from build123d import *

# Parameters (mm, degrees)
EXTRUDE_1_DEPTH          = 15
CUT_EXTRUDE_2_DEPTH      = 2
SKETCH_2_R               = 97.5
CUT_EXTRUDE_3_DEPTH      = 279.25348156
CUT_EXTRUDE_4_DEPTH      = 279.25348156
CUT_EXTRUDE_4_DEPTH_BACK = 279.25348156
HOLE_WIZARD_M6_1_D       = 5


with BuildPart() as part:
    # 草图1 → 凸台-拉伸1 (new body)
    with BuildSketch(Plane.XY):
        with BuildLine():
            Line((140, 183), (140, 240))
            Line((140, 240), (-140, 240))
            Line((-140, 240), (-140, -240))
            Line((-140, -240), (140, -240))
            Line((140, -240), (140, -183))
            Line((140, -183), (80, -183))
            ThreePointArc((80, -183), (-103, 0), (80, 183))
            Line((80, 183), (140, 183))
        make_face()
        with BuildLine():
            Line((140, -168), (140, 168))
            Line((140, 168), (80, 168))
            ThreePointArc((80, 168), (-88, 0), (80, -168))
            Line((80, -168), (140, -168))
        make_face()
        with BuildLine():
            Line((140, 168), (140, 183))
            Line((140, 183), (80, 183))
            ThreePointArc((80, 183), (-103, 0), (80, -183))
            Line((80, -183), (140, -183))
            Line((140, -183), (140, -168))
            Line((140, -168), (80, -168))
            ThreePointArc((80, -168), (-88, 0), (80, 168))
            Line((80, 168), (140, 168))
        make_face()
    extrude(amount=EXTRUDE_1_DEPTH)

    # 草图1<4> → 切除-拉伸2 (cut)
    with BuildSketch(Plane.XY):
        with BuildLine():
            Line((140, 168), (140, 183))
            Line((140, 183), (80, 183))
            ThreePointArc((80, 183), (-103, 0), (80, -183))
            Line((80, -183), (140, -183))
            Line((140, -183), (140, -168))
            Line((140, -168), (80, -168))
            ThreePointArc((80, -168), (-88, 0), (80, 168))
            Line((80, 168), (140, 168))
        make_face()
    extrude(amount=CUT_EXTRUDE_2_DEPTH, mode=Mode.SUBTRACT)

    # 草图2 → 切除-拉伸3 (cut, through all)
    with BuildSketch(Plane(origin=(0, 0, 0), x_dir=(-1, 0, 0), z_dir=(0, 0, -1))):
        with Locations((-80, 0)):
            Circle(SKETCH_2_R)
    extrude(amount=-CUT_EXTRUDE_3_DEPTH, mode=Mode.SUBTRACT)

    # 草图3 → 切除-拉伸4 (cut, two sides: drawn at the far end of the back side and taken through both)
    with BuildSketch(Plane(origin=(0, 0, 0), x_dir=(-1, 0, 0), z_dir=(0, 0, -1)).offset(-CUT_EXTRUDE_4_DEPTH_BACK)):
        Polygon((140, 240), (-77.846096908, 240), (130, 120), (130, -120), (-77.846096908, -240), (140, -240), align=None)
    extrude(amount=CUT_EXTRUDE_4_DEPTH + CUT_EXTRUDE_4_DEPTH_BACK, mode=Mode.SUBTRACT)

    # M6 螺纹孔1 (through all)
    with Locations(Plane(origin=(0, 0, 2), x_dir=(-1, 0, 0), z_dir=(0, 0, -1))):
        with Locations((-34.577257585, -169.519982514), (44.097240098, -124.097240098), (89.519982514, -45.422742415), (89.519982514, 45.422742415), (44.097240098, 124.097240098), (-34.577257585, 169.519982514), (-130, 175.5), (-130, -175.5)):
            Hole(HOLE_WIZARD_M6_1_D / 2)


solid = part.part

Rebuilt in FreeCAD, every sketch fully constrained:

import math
import FreeCAD as App
import Part
import Sketcher
Q = App.Units.Quantity

doc = App.newDocument("Part")
params = doc.addObject("Spreadsheet::Sheet", "Params")
for row, (alias, value) in enumerate([
    ("sketch1_width", "280 mm"),
    ("sketch1_height", "480 mm"),
    ("pad1_length", "15 mm"),
    ("sketch2_radius", "183 mm"),
    ("sketch2_radius2", "168 mm"),
    ("sketch2_width", "60 mm"),
    ("pocket1_length", "2 mm"),
    ("sketch3_diameter", "195 mm"),
    ("sketch4_height", "240 mm"),
    ("sketch4_height2", "480 mm"),
    ("sketch5_diameter", "5 mm"),
    ("hole_diameter", "5 mm"),
], start=1):
    params.set(f"A{row}", alias)
    params.set(f"B{row}", "=" + value)
    params.setAlias(f"B{row}", alias)

body = doc.addObject("PartDesign::Body", "Body")

sketch1 = body.newObject("Sketcher::SketchObject", "Sketch")
sketch1.AttachmentSupport = (doc.getObject("XY_Plane"), [""])
sketch1.MapMode = "FlatFace"
sketch1.addGeometry([
    Part.LineSegment(App.Vector(140, 240, 0), App.Vector(-140, 240, 0)),
    Part.LineSegment(App.Vector(-140, 240, 0), App.Vector(-140, -240, 0)),
    Part.LineSegment(App.Vector(-140, -240, 0), App.Vector(140, -240, 0)),
    Part.LineSegment(App.Vector(140, -240, 0), App.Vector(140, 240, 0)),
], False)
sketch1.addConstraint([
    Sketcher.Constraint("Coincident", 0, 2, 1, 1),
    Sketcher.Constraint("Coincident", 1, 2, 2, 1),
    Sketcher.Constraint("Coincident", 2, 2, 3, 1),
    Sketcher.Constraint("Coincident", 3, 2, 0, 1),
    Sketcher.Constraint("Horizontal", 0),
    Sketcher.Constraint("Vertical", 1),
    Sketcher.Constraint("Horizontal", 2),
    Sketcher.Constraint("Vertical", 3),
    Sketcher.Constraint("Symmetric", 0, 2, 2, 2, -1, 1),
    Sketcher.Constraint("DistanceX", 0, 2, 0, 1, Q("280 mm")),
    Sketcher.Constraint("DistanceY", 1, 2, 1, 1, Q("480 mm")),
])
sketch1.setExpression("Constraints[9]", "Params.sketch1_width")
sketch1.setExpression("Constraints[10]", "Params.sketch1_height")
pad1 = body.newObject("PartDesign::Pad", "Pad")
pad1.Profile = sketch1
pad1.setExpression("Length", "Params.pad1_length")

sketch2 = body.newObject("Sketcher::SketchObject", "Sketch001")
sketch2.AttachmentSupport = (doc.getObject("XY_Plane"), [""])
sketch2.MapMode = "FlatFace"
sketch2.addGeometry([
    Part.LineSegment(App.Vector(140, 168, 0), App.Vector(140, 183, 0)),
    Part.LineSegment(App.Vector(140, 183, 0), App.Vector(80, 183, 0)),
    Part.ArcOfCircle(Part.Circle(App.Vector(80, 0, 0), App.Vector(0, 0, 1), 183), math.radians(90), math.radians(270)),
    Part.LineSegment(App.Vector(80, -183, 0), App.Vector(140, -183, 0)),
    Part.LineSegment(App.Vector(140, -183, 0), App.Vector(140, -168, 0)),
    Part.LineSegment(App.Vector(140, -168, 0), App.Vector(80, -168, 0)),
    Part.ArcOfCircle(Part.Circle(App.Vector(80, 0, 0), App.Vector(0, 0, 1), 168), math.radians(90), math.radians(270)),
    Part.LineSegment(App.Vector(80, 168, 0), App.Vector(140, 168, 0)),
], False)
sketch2.addConstraint([
    Sketcher.Constraint("Coincident", 0, 2, 1, 1),
    Sketcher.Constraint("Tangent", 1, 2, 2, 1),
    Sketcher.Constraint("Tangent", 2, 2, 3, 1),
    Sketcher.Constraint("Coincident", 3, 2, 4, 1),
    Sketcher.Constraint("Coincident", 4, 2, 5, 1),
    Sketcher.Constraint("Tangent", 5, 2, 6, 2),
    Sketcher.Constraint("Tangent", 6, 1, 7, 1),
    Sketcher.Constraint("Coincident", 7, 2, 0, 1),
    Sketcher.Constraint("Vertical", 0),
    Sketcher.Constraint("Horizontal", 1),
    Sketcher.Constraint("Horizontal", 3),
    Sketcher.Constraint("Vertical", 4),
    Sketcher.Constraint("Horizontal", 5),
    Sketcher.Constraint("Horizontal", 7),
    Sketcher.Constraint("Coincident", 6, 3, 2, 3),
    Sketcher.Constraint("Symmetric", 0, 2, 3, 2, -1),
    Sketcher.Constraint("Radius", 2, Q("183 mm")),
    Sketcher.Constraint("Radius", 6, Q("168 mm")),
    Sketcher.Constraint("DistanceX", 1, 2, 1, 1, Q("60 mm")),
    Sketcher.Constraint("DistanceX", -1, 1, 2, 3, Q("80 mm")),
])
sketch2.setExpression("Constraints[16]", "Params.sketch2_radius")
sketch2.setExpression("Constraints[17]", "Params.sketch2_radius2")
sketch2.setExpression("Constraints[18]", "Params.sketch2_width")
pocket1 = body.newObject("PartDesign::Pocket", "Pocket")
pocket1.Profile = sketch2
pocket1.setExpression("Length", "Params.pocket1_length")
pocket1.Reversed = True

sketch3 = body.newObject("Sketcher::SketchObject", "Sketch002")
sketch3.AttachmentSupport = (doc.getObject("XY_Plane"), [""])
sketch3.MapMode = "FlatFace"
sketch3.addGeometry(Part.Circle(App.Vector(80, 0, 0), App.Vector(0, 0, 1), 98), False)
sketch3.addConstraint([
    Sketcher.Constraint("PointOnObject", 0, 3, -1),
    Sketcher.Constraint("Diameter", 0, Q("195 mm")),
    Sketcher.Constraint("DistanceX", -1, 1, 0, 3, Q("80 mm")),
])
sketch3.setExpression("Constraints[1]", "Params.sketch3_diameter")
pocket2 = body.newObject("PartDesign::Pocket", "Pocket001")
pocket2.Profile = sketch3
pocket2.Type = "ThroughAll"
pocket2.Reversed = True

sketch4 = body.newObject("Sketcher::SketchObject", "Sketch003")
sketch4.AttachmentSupport = (doc.getObject("XY_Plane"), [""])
sketch4.MapMode = "FlatFace"
sketch4.addGeometry([
    Part.LineSegment(App.Vector(-140, 240, 0), App.Vector(78, 240, 0)),
    Part.LineSegment(App.Vector(78, 240, 0), App.Vector(-130, 120, 0)),
    Part.LineSegment(App.Vector(-130, 120, 0), App.Vector(-130, -120, 0)),
    Part.LineSegment(App.Vector(-130, -120, 0), App.Vector(78, -240, 0)),
    Part.LineSegment(App.Vector(78, -240, 0), App.Vector(-140, -240, 0)),
    Part.LineSegment(App.Vector(-140, -240, 0), App.Vector(-140, 240, 0)),
], False)
sketch4.addConstraint([
    Sketcher.Constraint("Coincident", 0, 2, 1, 1),
    Sketcher.Constraint("Coincident", 1, 2, 2, 1),
    Sketcher.Constraint("Coincident", 2, 2, 3, 1),
    Sketcher.Constraint("Coincident", 3, 2, 4, 1),
    Sketcher.Constraint("Coincident", 4, 2, 5, 1),
    Sketcher.Constraint("Coincident", 5, 2, 0, 1),
    Sketcher.Constraint("Horizontal", 0),
    Sketcher.Constraint("Vertical", 2),
    Sketcher.Constraint("Horizontal", 4),
    Sketcher.Constraint("Vertical", 5),
    Sketcher.Constraint("Symmetric", 0, 2, 3, 2, -1),
    Sketcher.Constraint("Equal", 1, 3),
    Sketcher.Constraint("DistanceY", 2, 2, 2, 1, Q("240 mm")),
    Sketcher.Constraint("DistanceY", 5, 1, 5, 2, Q("480 mm")),
    Sketcher.Constraint("Angle", 1, Q("-150 deg")),
    Sketcher.Constraint("DistanceX", 1, 2, -1, 1, Q("130 mm")),
    Sketcher.Constraint("DistanceX", 4, 2, -1, 1, Q("140 mm")),
])
sketch4.setExpression("Constraints[12]", "Params.sketch4_height")
sketch4.setExpression("Constraints[13]", "Params.sketch4_height2")
pocket3 = body.newObject("PartDesign::Pocket", "Pocket002")
pocket3.Profile = sketch4
pocket3.Type = "ThroughAll"
pocket3.Midplane = True

sketch5 = body.newObject("Sketcher::SketchObject", "Sketch004")
sketch5.AttachmentSupport = (doc.getObject("XY_Plane"), [""])
sketch5.MapMode = "FlatFace"
sketch5.AttachmentOffset = App.Placement(App.Vector(0, 0, 2), App.Rotation())
sketch5.addGeometry([
    Part.Circle(App.Vector(34.6, -169.5, 0), App.Vector(0, 0, 1), 2.5),
    Part.Circle(App.Vector(-44.1, -124.1, 0), App.Vector(0, 0, 1), 2.5),
    Part.Circle(App.Vector(-89.5, -45.4, 0), App.Vector(0, 0, 1), 2.5),
    Part.Circle(App.Vector(-89.5, 45.4, 0), App.Vector(0, 0, 1), 2.5),
    Part.Circle(App.Vector(-44.1, 124.1, 0), App.Vector(0, 0, 1), 2.5),
    Part.Circle(App.Vector(34.6, 169.5, 0), App.Vector(0, 0, 1), 2.5),
    Part.Circle(App.Vector(130, 175.5, 0), App.Vector(0, 0, 1), 2.5),
    Part.Circle(App.Vector(130, -175.5, 0), App.Vector(0, 0, 1), 2.5),
], False)
sketch5.addConstraint([
    Sketcher.Constraint("Equal", 0, 1),
    Sketcher.Constraint("Equal", 1, 2),
    Sketcher.Constraint("Equal", 2, 3),
    Sketcher.Constraint("Equal", 3, 4),
    Sketcher.Constraint("Equal", 4, 5),
    Sketcher.Constraint("Equal", 5, 6),
    Sketcher.Constraint("Equal", 6, 7),
    Sketcher.Constraint("Symmetric", 2, 3, 3, 3, -1),
    Sketcher.Constraint("Symmetric", 1, 3, 4, 3, -1),
    Sketcher.Constraint("Symmetric", 0, 3, 5, 3, -1),
    Sketcher.Constraint("Symmetric", 6, 3, 7, 3, -1),
    Sketcher.Constraint("Diameter", 0, Q("5 mm")),
    Sketcher.Constraint("DistanceX", -1, 1, 6, 3, Q("130 mm")),
    Sketcher.Constraint("DistanceY", -1, 1, 6, 3, Q("175.5 mm")),
    Sketcher.Constraint("DistanceX", 1, 3, -1, 1, Q("44.09724 mm")),
    Sketcher.Constraint("DistanceY", 1, 3, -1, 1, Q("124.09724 mm")),
    Sketcher.Constraint("DistanceX", 2, 3, 0, 3, Q("124.09724 mm")),
    Sketcher.Constraint("DistanceY", 0, 3, 2, 3, Q("124.09724 mm")),
    Sketcher.Constraint("DistanceX", -1, 1, 0, 3, Q("34.577258 mm")),
    Sketcher.Constraint("DistanceY", 0, 3, -1, 1, Q("169.519983 mm")),
])
sketch5.setExpression("Constraints[11]", "Params.sketch5_diameter")
doc.recompute()
hole = body.newObject("PartDesign::Hole", "Hole")
hole.Profile = sketch5
hole.ThreadType = "None"
hole.setExpression("Diameter", "Params.hole_diameter")
hole.DepthType = "ThroughAll"
hole.Reversed = True

doc.recompute()
